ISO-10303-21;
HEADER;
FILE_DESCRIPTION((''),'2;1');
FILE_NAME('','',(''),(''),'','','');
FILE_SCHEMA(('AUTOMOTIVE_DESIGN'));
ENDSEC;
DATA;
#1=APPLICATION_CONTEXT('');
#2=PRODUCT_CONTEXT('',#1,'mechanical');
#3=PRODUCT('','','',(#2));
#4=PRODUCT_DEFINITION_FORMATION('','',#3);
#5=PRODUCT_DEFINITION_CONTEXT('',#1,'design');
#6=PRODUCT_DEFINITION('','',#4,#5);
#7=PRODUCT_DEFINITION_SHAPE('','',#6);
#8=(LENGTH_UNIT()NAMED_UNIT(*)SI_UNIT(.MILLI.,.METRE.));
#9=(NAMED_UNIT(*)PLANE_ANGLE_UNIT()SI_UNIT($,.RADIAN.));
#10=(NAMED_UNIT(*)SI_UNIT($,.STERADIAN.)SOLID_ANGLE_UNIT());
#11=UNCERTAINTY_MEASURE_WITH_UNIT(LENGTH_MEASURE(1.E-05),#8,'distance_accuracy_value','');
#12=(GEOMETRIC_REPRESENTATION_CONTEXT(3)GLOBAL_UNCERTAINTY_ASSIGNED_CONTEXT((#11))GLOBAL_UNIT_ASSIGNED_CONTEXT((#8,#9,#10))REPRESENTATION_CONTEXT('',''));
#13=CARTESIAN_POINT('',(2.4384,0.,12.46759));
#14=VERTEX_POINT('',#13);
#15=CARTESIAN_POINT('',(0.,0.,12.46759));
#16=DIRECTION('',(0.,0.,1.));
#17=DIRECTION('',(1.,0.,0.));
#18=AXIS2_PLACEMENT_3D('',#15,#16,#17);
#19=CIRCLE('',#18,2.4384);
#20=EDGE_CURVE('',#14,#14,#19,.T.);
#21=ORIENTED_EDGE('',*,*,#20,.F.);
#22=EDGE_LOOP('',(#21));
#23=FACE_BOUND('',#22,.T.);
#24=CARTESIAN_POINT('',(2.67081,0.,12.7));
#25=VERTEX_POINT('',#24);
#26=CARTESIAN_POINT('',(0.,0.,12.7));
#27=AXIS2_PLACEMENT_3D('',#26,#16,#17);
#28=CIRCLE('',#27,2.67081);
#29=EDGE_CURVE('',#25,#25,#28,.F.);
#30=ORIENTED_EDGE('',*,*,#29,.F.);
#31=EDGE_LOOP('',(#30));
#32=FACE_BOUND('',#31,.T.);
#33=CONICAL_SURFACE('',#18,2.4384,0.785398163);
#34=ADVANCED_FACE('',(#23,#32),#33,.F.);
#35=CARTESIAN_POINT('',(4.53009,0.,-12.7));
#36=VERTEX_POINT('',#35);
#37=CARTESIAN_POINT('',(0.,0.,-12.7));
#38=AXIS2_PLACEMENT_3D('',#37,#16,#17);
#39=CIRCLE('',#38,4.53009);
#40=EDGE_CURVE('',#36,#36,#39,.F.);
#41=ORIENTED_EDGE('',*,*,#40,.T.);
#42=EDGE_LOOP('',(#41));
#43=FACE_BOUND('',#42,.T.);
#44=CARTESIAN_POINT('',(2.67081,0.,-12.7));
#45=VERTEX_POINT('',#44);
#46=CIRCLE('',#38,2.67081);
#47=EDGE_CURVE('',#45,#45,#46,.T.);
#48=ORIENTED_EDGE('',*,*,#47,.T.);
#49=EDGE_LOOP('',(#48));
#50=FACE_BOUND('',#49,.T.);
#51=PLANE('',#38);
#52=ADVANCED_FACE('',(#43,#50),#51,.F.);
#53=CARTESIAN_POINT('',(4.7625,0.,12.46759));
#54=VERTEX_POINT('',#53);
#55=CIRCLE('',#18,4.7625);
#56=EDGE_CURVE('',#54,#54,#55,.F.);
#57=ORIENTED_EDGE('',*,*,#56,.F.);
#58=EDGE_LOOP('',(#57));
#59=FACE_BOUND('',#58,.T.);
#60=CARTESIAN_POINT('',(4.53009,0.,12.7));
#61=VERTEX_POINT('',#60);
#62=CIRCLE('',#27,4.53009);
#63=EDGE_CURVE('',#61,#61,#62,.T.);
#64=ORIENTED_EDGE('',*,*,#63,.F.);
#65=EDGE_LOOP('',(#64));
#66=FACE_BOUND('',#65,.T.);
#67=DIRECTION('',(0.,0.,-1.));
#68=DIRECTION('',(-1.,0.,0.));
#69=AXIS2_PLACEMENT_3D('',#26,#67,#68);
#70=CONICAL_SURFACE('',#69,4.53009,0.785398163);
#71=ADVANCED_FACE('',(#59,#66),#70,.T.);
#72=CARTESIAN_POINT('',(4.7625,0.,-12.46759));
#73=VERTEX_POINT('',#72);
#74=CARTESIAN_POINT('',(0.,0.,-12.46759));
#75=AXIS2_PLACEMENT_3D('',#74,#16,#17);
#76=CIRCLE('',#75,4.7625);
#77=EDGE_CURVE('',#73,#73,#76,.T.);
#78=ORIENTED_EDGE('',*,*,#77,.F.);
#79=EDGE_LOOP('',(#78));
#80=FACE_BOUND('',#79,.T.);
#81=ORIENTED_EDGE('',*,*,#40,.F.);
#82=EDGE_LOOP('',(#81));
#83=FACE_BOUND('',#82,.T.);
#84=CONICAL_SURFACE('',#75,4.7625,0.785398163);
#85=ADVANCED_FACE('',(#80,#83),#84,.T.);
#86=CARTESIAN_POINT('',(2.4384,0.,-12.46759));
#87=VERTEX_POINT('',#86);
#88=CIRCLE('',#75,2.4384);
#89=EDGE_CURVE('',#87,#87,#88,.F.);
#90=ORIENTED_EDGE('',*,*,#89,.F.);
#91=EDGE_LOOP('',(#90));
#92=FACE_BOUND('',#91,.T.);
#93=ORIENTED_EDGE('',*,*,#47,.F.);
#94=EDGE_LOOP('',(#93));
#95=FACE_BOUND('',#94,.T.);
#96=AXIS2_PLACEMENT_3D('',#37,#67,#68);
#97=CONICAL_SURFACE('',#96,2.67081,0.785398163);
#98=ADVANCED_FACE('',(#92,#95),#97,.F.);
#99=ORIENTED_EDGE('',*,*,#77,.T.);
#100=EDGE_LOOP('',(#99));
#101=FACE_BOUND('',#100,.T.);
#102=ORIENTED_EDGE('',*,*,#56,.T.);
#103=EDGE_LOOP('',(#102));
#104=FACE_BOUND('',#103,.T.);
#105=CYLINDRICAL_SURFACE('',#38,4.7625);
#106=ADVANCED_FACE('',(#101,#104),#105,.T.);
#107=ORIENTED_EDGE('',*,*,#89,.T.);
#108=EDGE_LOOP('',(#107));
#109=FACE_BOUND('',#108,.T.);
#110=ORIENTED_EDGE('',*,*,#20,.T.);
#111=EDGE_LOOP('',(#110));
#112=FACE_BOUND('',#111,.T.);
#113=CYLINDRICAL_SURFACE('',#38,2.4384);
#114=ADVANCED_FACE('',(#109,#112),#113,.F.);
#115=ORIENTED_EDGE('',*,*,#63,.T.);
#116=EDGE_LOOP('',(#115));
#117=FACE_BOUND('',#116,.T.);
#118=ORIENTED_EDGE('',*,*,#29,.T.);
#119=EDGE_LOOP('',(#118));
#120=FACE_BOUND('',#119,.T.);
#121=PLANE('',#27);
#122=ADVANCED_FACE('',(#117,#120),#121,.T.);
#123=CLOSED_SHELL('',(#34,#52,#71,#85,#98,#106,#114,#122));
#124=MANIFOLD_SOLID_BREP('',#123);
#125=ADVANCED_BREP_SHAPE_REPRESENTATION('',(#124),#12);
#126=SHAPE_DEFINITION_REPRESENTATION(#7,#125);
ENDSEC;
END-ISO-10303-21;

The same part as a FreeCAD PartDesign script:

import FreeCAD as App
import Part
import Sketcher

V = App.Vector
Q = App.Units.Quantity


def edges_at(feature, points):
    """Names of the edges that pass closest to the given points."""
    edges = feature.Shape.Edges
    near = lambda p: min(range(len(edges)), key=lambda i: edges[i].distToShape(Part.Vertex(*p))[0])
    return sorted({f"Edge{near(p) + 1}" for p in points})

doc = App.newDocument("Part")
body = doc.addObject("PartDesign::Body", "Body")

sketch1 = body.newObject("Sketcher::SketchObject", "Sketch")
sketch1.AttachmentSupport = (doc.getObject("XY_Plane"), [""])
sketch1.MapMode = "FlatFace"
sketch1.addGeometry([
    Part.Circle(V(0, 0, 0), V(0, 0, 1), 4.7625),
    Part.Circle(V(0, 0, 0), V(0, 0, 1), 2.4384),
], False)
sketch1.addConstraint([
    Sketcher.Constraint("Coincident", 0, 3, -1, 1),
    Sketcher.Constraint("Coincident", 1, 3, -1, 1),
    Sketcher.Constraint("Diameter", 0, Q("0.375 in")),
    Sketcher.Constraint("Diameter", 1, Q("0.192 in")),
])
pad1 = body.newObject("PartDesign::Pad", "Pad")
pad1.Profile = sketch1
pad1.Type = "TwoLengths"
pad1.Length = Q("0.5 in")
pad1.Length2 = Q("0.5 in")
doc.recompute()

chamfer = body.newObject("PartDesign::Chamfer", "Chamfer")
chamfer.Base = (pad1, edges_at(pad1, [
    (-4.763, 0, -12.7),
    (-2.438, 0, -12.7),
    (-4.763, 0, 12.7),
    (-2.438, 0, 12.7),
]))
chamfer.Size = 0.23241

doc.recompute()
